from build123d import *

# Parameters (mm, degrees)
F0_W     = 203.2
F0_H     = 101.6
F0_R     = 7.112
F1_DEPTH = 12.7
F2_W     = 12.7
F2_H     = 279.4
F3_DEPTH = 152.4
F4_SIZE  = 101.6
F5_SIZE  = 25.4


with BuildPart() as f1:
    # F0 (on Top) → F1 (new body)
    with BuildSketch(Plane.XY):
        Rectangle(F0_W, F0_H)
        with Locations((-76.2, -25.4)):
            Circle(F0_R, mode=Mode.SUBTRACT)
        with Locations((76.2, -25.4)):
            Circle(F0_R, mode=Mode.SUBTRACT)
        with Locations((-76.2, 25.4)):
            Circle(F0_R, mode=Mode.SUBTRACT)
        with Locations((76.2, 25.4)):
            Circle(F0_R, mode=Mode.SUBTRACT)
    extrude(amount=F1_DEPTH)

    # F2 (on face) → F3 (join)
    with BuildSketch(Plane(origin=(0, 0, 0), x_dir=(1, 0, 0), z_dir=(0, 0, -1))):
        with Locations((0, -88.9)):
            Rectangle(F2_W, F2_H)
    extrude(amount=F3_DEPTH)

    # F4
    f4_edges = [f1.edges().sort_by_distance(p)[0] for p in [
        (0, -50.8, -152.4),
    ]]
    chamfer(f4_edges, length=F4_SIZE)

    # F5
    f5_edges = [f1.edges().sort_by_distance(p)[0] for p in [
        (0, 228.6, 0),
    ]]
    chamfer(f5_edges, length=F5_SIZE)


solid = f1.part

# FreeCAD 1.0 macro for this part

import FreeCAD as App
import Part
import Sketcher
from FreeCAD import Vector
Q = App.Units.Quantity


def edges_at(feature, points):
    """Names of the edges that pass closest to the given points."""
    edges = feature.Shape.Edges
    near = lambda p: min(range(len(edges)), key=lambda i: edges[i].distToShape(Part.Vertex(*p))[0])
    return sorted({f"Edge{near(p) + 1}" for p in points})


def add_polygon(sketch, points):
    """Adds a closed chain of lines whose ends are joined by coincident constraints."""
    first, n = sketch.GeometryCount, len(points)
    for a, b in zip(points, points[1:] + points[:1]):
        sketch.addGeometry(Part.LineSegment(App.Vector(*a, 0), App.Vector(*b, 0)), False)
    for i in range(n):
        sketch.addConstraint(Sketcher.Constraint("Coincident", first + i, 2, first + (i + 1) % n, 1))

doc = App.newDocument("Part")
body = doc.addObject("PartDesign::Body", "Body")

# Sketch on XY plane
sketch1 = body.newObject("Sketcher::SketchObject", "Sketch")
sketch1.AttachmentSupport = (doc.getObject("XY_Plane"), [""])
sketch1.MapMode = "FlatFace"
add_polygon(sketch1, [(-101.6, 50.8), (-101.6, -50.8), (101.6, -50.8), (101.6, 50.8)])  # lines 0-3
sketch1.addGeometry(Part.Circle(Vector(-76.2, -25.4, 0), Vector(0, 0, 1), 7.112), False)  # 4
sketch1.addGeometry(Part.Circle(Vector(76.2, -25.4, 0), Vector(0, 0, 1), 7.112), False)  # 5
sketch1.addGeometry(Part.Circle(Vector(-76.2, 25.4, 0), Vector(0, 0, 1), 7.112), False)  # 6
sketch1.addGeometry(Part.Circle(Vector(76.2, 25.4, 0), Vector(0, 0, 1), 7.112), False)  # 7
sketch1.addConstraint([
    Sketcher.Constraint("Vertical", 0),
    Sketcher.Constraint("Horizontal", 1),
    Sketcher.Constraint("Vertical", 2),
    Sketcher.Constraint("Horizontal", 3),
    Sketcher.Constraint("Equal", 4, 5),
    Sketcher.Constraint("Equal", 5, 6),
    Sketcher.Constraint("Equal", 6, 7),
    Sketcher.Constraint("Symmetric", 5, 3, 6, 3, -1, 1),
    Sketcher.Constraint("Symmetric", 4, 3, 7, 3, -1, 1),
    Sketcher.Constraint("Symmetric", 0, 2, 2, 2, -1, 1),
    Sketcher.Constraint("Symmetric", 4, 3, 5, 3, -2),
    Sketcher.Constraint("Diameter", 4, Q("0.56 in")),
    Sketcher.Constraint("DistanceX", 1, 1, 1, 2, Q("8 in")),
    Sketcher.Constraint("DistanceY", 0, 2, 0, 1, Q("4 in")),
    Sketcher.Constraint("DistanceX", 4, 3, -1, 1, Q("3 in")),
    Sketcher.Constraint("DistanceY", 4, 3, -1, 1, Q("1 in")),
])
pad1 = body.newObject("PartDesign::Pad", "Pad")
pad1.Profile = sketch1
pad1.Length = Q("0.5 in")

# Sketch on XY plane
sketch2 = body.newObject("Sketcher::SketchObject", "Sketch001")
sketch2.AttachmentSupport = (doc.getObject("XY_Plane"), [""])
sketch2.MapMode = "FlatFace"
add_polygon(sketch2, [(-6.35, -50.8), (-6.35, 228.6), (6.35, 228.6), (6.35, -50.8)])  # lines 0-3
sketch2.addConstraint([
    Sketcher.Constraint("Vertical", 0),
    Sketcher.Constraint("Horizontal", 1),
    Sketcher.Constraint("Vertical", 2),
    Sketcher.Constraint("Horizontal", 3),
    Sketcher.Constraint("DistanceY", 0, 1, 0, 2, Q("11 in")),
    Sketcher.Constraint("DistanceX", 1, 1, 1, 2, Q("0.5 in")),
    Sketcher.Constraint("DistanceY", -1, 1, 0, 2, Q("9 in")),
    Sketcher.Constraint("DistanceX", 0, 2, -1, 1, Q("0.25 in")),
])
pad2 = body.newObject("PartDesign::Pad", "Pad001")
pad2.Profile = sketch2
pad2.Length = Q("6 in")
pad2.Reversed = True
doc.recompute()

chamfer = body.newObject("PartDesign::Chamfer", "Chamfer")
chamfer.Base = (pad2, edges_at(pad2, [(0, -50.8, -152.4)]))
chamfer.Size = Q("4 in")
doc.recompute()

chamfer2 = body.newObject("PartDesign::Chamfer", "Chamfer001")
chamfer2.Base = (chamfer, edges_at(chamfer, [(0, 228.6, 0)]))
chamfer2.Size = Q("1 in")

doc.recompute()
